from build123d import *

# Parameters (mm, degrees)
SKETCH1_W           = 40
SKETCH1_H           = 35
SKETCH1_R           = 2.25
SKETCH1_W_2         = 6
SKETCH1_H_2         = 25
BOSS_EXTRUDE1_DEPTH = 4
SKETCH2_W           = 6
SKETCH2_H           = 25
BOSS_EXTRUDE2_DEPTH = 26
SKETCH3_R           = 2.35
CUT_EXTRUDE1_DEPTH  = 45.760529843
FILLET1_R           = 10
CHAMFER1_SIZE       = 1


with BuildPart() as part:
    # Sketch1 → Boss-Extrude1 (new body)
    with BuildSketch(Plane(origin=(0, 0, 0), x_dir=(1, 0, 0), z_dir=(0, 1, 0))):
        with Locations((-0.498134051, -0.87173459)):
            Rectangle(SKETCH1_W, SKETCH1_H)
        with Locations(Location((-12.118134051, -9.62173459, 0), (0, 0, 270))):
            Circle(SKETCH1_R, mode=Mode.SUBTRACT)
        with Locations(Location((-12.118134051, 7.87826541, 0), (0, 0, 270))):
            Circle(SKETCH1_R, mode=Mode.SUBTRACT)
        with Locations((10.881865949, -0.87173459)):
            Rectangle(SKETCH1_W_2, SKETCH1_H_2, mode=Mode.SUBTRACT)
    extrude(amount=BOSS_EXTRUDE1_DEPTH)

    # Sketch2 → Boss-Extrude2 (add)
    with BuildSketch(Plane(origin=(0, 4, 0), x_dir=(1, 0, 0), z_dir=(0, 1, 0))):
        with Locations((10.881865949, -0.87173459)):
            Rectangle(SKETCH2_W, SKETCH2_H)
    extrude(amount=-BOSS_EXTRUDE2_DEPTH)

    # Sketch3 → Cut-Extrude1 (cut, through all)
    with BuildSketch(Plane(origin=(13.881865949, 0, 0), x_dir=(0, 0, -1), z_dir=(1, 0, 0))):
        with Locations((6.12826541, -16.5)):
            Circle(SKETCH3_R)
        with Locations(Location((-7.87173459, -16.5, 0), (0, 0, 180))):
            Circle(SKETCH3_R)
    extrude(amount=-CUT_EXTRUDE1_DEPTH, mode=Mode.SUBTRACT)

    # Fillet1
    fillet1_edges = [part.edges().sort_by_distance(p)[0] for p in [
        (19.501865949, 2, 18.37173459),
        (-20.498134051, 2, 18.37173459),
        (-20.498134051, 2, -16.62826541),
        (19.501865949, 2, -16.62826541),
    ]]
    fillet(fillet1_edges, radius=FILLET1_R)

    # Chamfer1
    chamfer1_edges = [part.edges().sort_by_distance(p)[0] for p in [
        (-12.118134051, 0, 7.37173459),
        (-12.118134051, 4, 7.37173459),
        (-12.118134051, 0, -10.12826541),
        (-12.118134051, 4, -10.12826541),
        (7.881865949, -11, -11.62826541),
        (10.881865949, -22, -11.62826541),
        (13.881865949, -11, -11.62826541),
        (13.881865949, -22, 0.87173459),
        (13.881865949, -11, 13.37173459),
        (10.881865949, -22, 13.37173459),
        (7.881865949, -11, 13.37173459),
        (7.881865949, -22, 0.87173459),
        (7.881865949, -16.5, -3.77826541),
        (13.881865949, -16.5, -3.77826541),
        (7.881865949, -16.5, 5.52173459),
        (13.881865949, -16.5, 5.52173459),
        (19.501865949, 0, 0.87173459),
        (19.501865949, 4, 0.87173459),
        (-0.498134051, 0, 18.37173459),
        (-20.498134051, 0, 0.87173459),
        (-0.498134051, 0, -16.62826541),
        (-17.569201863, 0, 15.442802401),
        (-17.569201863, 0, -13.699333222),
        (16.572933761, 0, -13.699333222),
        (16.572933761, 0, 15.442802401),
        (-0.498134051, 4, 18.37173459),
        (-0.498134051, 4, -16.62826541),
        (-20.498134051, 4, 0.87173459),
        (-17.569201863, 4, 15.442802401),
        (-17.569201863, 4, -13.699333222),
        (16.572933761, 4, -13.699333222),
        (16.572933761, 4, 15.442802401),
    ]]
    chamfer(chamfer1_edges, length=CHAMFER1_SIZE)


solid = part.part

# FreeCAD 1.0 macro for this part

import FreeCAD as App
import Part
import Sketcher
Q = App.Units.Quantity


def edges_at(feature, points):
    """Names of the edges that pass closest to the given points."""
    edges = feature.Shape.Edges
    near = lambda p: min(range(len(edges)), key=lambda i: edges[i].distToShape(Part.Vertex(*p))[0])
    return sorted({f"Edge{near(p) + 1}" for p in points})

doc = App.newDocument("Part")
body = doc.addObject("PartDesign::Body", "Body")

# Sketch on XZ plane
sketch1 = body.newObject("Sketcher::SketchObject", "Sketch")
sketch1.AttachmentSupport = (doc.getObject("XZ_Plane"), [""])
sketch1.MapMode = "FlatFace"
sketch1.addGeometry([
    Part.LineSegment(App.Vector(-20.5, -16.6, 0), App.Vector(-20.5, 18.4, 0)),  # 0
    Part.LineSegment(App.Vector(-20.5, 18.4, 0), App.Vector(19.5, 18.4, 0)),  # 1
    Part.LineSegment(App.Vector(19.5, 18.4, 0), App.Vector(19.5, -16.6, 0)),  # 2
    Part.LineSegment(App.Vector(19.5, -16.6, 0), App.Vector(-20.5, -16.6, 0)),  # 3
    Part.Circle(App.Vector(-12.1, 9.6, 0), App.Vector(0, 0, 1), 2.2),  # 4
    Part.Circle(App.Vector(-12.1, -7.9, 0), App.Vector(0, 0, 1), 2.2),  # 5
    Part.LineSegment(App.Vector(13.9, 13.4, 0), App.Vector(7.9, 13.4, 0)),  # 6
    Part.LineSegment(App.Vector(7.9, 13.4, 0), App.Vector(7.9, -11.6, 0)),  # 7
    Part.LineSegment(App.Vector(7.9, -11.6, 0), App.Vector(13.9, -11.6, 0)),  # 8
    Part.LineSegment(App.Vector(13.9, -11.6, 0), App.Vector(13.9, 13.4, 0)),  # 9
], False)
sketch1.addConstraint([
    Sketcher.Constraint("Coincident", 0, 2, 1, 1),
    Sketcher.Constraint("Coincident", 1, 2, 2, 1),
    Sketcher.Constraint("Coincident", 2, 2, 3, 1),
    Sketcher.Constraint("Coincident", 3, 2, 0, 1),
    Sketcher.Constraint("Coincident", 6, 2, 7, 1),
    Sketcher.Constraint("Coincident", 7, 2, 8, 1),
    Sketcher.Constraint("Coincident", 8, 2, 9, 1),
    Sketcher.Constraint("Coincident", 9, 2, 6, 1),
    Sketcher.Constraint("Vertical", 0),
    Sketcher.Constraint("Horizontal", 1),
    Sketcher.Constraint("Vertical", 2),
    Sketcher.Constraint("Horizontal", 3),
    Sketcher.Constraint("Horizontal", 6),
    Sketcher.Constraint("Vertical", 7),
    Sketcher.Constraint("Horizontal", 8),
    Sketcher.Constraint("Vertical", 9),
    Sketcher.Constraint("Equal", 4, 5),
    Sketcher.Constraint("Vertical", 4, 3, 5, 3),
    Sketcher.Constraint("Diameter", 4, Q("4.5 mm")),
    Sketcher.Constraint("DistanceX", 1, 1, 1, 2, Q("40 mm")),
    Sketcher.Constraint("DistanceX", 6, 2, 6, 1, Q("6 mm")),
    Sketcher.Constraint("DistanceY", 0, 1, 0, 2, Q("35 mm")),
    Sketcher.Constraint("DistanceY", 7, 2, 7, 1, Q("25 mm")),
    Sketcher.Constraint("DistanceY", 6, 2, 1, 2, Q("5 mm")),
    Sketcher.Constraint("DistanceX", 4, 3, 6, 2, Q("20 mm")),
    Sketcher.Constraint("DistanceY", 5, 3, 4, 3, Q("17.5 mm")),
    Sketcher.Constraint("DistanceX", 0, 2, 4, 3, Q("8.38 mm")),
    Sketcher.Constraint("DistanceY", 4, 3, 0, 2, Q("8.75 mm")),
    Sketcher.Constraint("DistanceX", 4, 3, -1, 1, Q("12.118134 mm")),
    Sketcher.Constraint("DistanceY", -1, 1, 4, 3, Q("9.621735 mm")),
])
pad1 = body.newObject("PartDesign::Pad", "Pad")
pad1.Profile = sketch1
pad1.Length = 4
pad1.Reversed = True

# Sketch on XZ plane
sketch2 = body.newObject("Sketcher::SketchObject", "Sketch001")
sketch2.AttachmentSupport = (doc.getObject("XZ_Plane"), [""])
sketch2.MapMode = "FlatFace"
sketch2.AttachmentOffset = App.Placement(App.Vector(0, 0, -4), App.Rotation())
sketch2.addGeometry([
    Part.LineSegment(App.Vector(8, -12, 0), App.Vector(8, 13, 0)),
    Part.LineSegment(App.Vector(8, 13, 0), App.Vector(14, 13, 0)),
    Part.LineSegment(App.Vector(14, 13, 0), App.Vector(14, -12, 0)),
    Part.LineSegment(App.Vector(14, -12, 0), App.Vector(8, -12, 0)),
], False)
sketch2.addConstraint([
    Sketcher.Constraint("Coincident", 0, 2, 1, 1),
    Sketcher.Constraint("Coincident", 1, 2, 2, 1),
    Sketcher.Constraint("Coincident", 2, 2, 3, 1),
    Sketcher.Constraint("Coincident", 3, 2, 0, 1),
    Sketcher.Constraint("Vertical", 0),
    Sketcher.Constraint("Horizontal", 1),
    Sketcher.Constraint("Vertical", 2),
    Sketcher.Constraint("Horizontal", 3),
    Sketcher.Constraint("DistanceX", 1, 1, 1, 2, Q("6 mm")),
    Sketcher.Constraint("DistanceY", 0, 1, 0, 2, Q("25 mm")),
    Sketcher.Constraint("DistanceX", -1, 1, 0, 2, Q("7.881866 mm")),
    Sketcher.Constraint("DistanceY", -1, 1, 0, 2, Q("13.371735 mm")),
])
pad2 = body.newObject("PartDesign::Pad", "Pad001")
pad2.Profile = sketch2
pad2.Length = 26

# Sketch on YZ plane
sketch3 = body.newObject("Sketcher::SketchObject", "Sketch002")
sketch3.AttachmentSupport = (doc.getObject("YZ_Plane"), [""])
sketch3.MapMode = "FlatFace"
sketch3.AttachmentOffset = App.Placement(App.Vector(0, 0, 13.881866), App.Rotation())
sketch3.addGeometry([
    Part.Circle(App.Vector(-16.5, -6.1, 0), App.Vector(0, 0, 1), 2.4),
    Part.Circle(App.Vector(-16.5, 7.9, 0), App.Vector(0, 0, 1), 2.4),
], False)
sketch3.addConstraint([
    Sketcher.Constraint("Equal", 0, 1),
    Sketcher.Constraint("Vertical", 0, 3, 1, 3),
    Sketcher.Constraint("Diameter", 0, Q("4.7 mm")),
    Sketcher.Constraint("DistanceY", 0, 3, 1, 3, Q("14 mm")),
    Sketcher.Constraint("DistanceX", 0, 3, -1, 1, Q("16.5 mm")),
    Sketcher.Constraint("DistanceY", 0, 3, -1, 1, Q("6.128265 mm")),
])
pocket1 = body.newObject("PartDesign::Pocket", "Pocket")
pocket1.Profile = sketch3
pocket1.Type = "ThroughAll"
doc.recompute()

fillet = body.newObject("PartDesign::Fillet", "Fillet")
fillet.Base = (pocket1, edges_at(pocket1, [
    (19.502, 2, 18.372),
    (-20.498, 2, 18.372),
    (-20.498, 2, -16.628),
    (19.502, 2, -16.628),
]))
fillet.Radius = 10
doc.recompute()

chamfer = body.newObject("PartDesign::Chamfer", "Chamfer")
chamfer.Base = (fillet, edges_at(fillet, [
    (-12.118, 0, 7.372),
    (-12.118, 4, 7.372),
    (-12.118, 0, -10.128),
    (-12.118, 4, -10.128),
    (7.882, -11, -11.628),
    (10.882, -22, -11.628),
    (13.882, -11, -11.628),
    (13.882, -22, 0.872),
    (13.882, -11, 13.372),
    (10.882, -22, 13.372),
    (7.882, -11, 13.372),
    (7.882, -22, 0.872),
    (7.882, -16.5, -3.778),
    (13.882, -16.5, -3.778),
    (7.882, -16.5, 5.522),
    (13.882, -16.5, 5.522),
    (19.502, 0, 0.872),
    (19.502, 4, 0.872),
    (-0.498, 0, 18.372),
    (-20.498, 0, 0.872),
    (-0.498, 0, -16.628),
    (-17.569, 0, 15.443),
    (-17.569, 0, -13.699),
    (16.573, 0, -13.699),
    (16.573, 0, 15.443),
    (-0.498, 4, 18.372),
    (-0.498, 4, -16.628),
    (-20.498, 4, 0.872),
    (-17.569, 4, 15.443),
    (-17.569, 4, -13.699),
    (16.573, 4, -13.699),
    (16.573, 4, 15.443),
]))
chamfer.Size = 1

doc.recompute()
